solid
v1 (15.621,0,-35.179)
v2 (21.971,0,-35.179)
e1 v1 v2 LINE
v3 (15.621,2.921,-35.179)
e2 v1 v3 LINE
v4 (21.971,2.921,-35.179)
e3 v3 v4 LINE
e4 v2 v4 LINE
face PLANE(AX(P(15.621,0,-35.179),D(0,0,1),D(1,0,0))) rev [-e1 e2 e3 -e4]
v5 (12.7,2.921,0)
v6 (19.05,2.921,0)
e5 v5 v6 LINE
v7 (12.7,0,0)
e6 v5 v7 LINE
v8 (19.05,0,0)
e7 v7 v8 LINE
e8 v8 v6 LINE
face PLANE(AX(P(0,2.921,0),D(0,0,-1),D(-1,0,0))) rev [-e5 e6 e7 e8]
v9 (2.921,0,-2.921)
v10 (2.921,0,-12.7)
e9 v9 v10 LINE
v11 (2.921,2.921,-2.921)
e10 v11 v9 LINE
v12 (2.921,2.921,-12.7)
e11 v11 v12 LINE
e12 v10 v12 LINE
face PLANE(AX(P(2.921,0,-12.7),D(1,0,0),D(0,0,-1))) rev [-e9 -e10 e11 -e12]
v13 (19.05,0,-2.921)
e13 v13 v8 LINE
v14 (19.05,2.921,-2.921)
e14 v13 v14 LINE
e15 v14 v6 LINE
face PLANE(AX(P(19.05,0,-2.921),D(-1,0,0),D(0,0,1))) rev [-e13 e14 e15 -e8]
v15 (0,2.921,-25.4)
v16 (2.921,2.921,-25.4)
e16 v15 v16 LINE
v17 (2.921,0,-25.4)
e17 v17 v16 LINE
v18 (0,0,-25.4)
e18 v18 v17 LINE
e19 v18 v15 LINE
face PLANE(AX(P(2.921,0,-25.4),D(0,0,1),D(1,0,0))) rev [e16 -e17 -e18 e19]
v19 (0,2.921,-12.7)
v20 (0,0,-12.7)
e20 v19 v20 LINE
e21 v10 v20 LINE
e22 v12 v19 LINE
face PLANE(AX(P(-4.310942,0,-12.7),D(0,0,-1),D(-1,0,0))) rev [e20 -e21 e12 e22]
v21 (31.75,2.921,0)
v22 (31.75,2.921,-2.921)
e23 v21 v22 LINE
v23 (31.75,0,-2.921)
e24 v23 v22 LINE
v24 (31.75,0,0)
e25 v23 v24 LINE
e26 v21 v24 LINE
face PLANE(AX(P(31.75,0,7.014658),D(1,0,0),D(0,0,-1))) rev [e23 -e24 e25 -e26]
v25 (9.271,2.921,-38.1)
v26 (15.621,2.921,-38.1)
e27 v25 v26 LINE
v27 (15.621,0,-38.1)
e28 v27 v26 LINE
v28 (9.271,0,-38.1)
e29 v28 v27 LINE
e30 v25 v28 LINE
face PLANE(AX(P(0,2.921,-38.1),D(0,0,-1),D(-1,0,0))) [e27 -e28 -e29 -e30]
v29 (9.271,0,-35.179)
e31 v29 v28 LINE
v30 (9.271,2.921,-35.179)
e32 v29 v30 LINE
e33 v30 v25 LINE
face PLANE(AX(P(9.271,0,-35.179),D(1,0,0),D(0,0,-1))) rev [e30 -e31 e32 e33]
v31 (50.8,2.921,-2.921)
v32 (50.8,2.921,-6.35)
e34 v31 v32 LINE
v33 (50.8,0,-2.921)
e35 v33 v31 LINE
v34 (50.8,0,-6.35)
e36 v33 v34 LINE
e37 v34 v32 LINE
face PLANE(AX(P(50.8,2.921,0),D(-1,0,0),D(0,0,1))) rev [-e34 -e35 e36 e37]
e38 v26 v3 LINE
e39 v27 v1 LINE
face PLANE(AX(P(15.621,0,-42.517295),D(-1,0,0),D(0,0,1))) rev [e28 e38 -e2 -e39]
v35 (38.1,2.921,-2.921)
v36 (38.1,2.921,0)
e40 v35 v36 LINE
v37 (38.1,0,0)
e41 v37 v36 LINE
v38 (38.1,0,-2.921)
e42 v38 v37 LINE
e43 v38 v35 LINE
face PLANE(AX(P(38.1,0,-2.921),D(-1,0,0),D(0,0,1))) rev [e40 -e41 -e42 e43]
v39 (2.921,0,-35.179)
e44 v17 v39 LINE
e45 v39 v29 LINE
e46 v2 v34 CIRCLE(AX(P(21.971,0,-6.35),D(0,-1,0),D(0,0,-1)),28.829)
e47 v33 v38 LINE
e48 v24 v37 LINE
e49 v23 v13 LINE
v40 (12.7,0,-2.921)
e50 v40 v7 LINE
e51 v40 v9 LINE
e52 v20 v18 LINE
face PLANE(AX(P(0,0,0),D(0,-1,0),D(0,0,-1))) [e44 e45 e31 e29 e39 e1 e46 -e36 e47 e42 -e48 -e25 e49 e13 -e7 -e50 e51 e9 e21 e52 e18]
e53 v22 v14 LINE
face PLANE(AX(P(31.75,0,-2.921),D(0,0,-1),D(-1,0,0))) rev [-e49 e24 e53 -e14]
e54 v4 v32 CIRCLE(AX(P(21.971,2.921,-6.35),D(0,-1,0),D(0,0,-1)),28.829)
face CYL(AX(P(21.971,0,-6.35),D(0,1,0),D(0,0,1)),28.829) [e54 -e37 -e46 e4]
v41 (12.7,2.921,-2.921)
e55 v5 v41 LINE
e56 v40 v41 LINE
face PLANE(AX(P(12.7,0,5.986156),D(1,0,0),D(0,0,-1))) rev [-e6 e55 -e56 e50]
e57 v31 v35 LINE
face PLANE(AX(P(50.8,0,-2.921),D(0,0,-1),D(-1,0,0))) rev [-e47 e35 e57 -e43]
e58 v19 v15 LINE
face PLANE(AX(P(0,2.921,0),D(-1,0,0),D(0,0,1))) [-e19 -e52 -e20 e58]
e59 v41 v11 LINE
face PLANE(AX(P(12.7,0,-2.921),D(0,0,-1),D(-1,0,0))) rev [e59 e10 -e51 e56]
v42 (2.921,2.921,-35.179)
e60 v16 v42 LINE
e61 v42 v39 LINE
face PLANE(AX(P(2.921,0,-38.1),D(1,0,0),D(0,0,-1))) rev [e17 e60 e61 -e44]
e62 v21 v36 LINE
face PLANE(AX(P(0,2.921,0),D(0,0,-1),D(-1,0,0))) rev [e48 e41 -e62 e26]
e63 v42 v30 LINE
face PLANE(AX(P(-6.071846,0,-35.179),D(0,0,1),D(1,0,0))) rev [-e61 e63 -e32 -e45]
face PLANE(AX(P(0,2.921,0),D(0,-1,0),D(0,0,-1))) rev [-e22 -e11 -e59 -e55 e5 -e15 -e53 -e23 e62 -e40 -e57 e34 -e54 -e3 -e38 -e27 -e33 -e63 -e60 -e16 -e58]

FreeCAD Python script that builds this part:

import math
import FreeCAD as App
import Part
import Sketcher
from FreeCAD import Vector
Q = App.Units.Quantity


def add_polygon(sketch, points):
    """Adds a closed chain of lines whose ends are joined by coincident constraints."""
    first, n = sketch.GeometryCount, len(points)
    for a, b in zip(points, points[1:] + points[:1]):
        sketch.addGeometry(Part.LineSegment(App.Vector(*a, 0), App.Vector(*b, 0)), False)
    for i in range(n):
        sketch.addConstraint(Sketcher.Constraint("Coincident", first + i, 2, first + (i + 1) % n, 1))

doc = App.newDocument("Part")
body = doc.addObject("PartDesign::Body", "Body")

sketch1 = doc.addObject("Sketcher::SketchObject", "Sketch")
body.addObject(sketch1)
sketch1.AttachmentSupport = (doc.XZ_Plane, [""])
sketch1.MapMode = "FlatFace"
add_polygon(sketch1, [(0, -38), (0, 0), (51, 0), (51, -38)])
sketch1.addConstraint([
    Sketcher.Constraint("Vertical", 0),
    Sketcher.Constraint("Horizontal", 1),
    Sketcher.Constraint("Vertical", 2),
    Sketcher.Constraint("Horizontal", 3),
    Sketcher.Constraint("Coincident", 0, 2, -1, 1),
    Sketcher.Constraint("DistanceX", 1, 1, 1, 2, Q("2 in")),
    Sketcher.Constraint("DistanceY", 0, 1, 0, 2, Q("1.5 in")),
])
pad1 = doc.addObject("PartDesign::Pad", "Pad")
body.addObject(pad1)
pad1.Profile = sketch1
pad1.Length = Q("0.115 in")
pad1.Reversed = True

sketch2 = doc.addObject("Sketcher::SketchObject", "Sketch001")
body.addObject(sketch2)
sketch2.AttachmentSupport = (doc.XZ_Plane, [""])
sketch2.MapMode = "FlatFace"
sketch2.AttachmentOffset = App.Placement(Vector(0, 0, -0.115 * 25.4), App.Rotation())
add_polygon(sketch2, [(0, 13), (51, 13), (51, -3), (38, -3), (38, 7), (32, 7), (32, -3), (19, -3), (19, 6), (13, 6), (13, -3), (0, -3)])
sketch2.addConstraint([
    Sketcher.Constraint("Horizontal", 0),
    Sketcher.Constraint("Vertical", 1),
    Sketcher.Constraint("Horizontal", 2),
    Sketcher.Constraint("Vertical", 3),
    Sketcher.Constraint("Horizontal", 4),
    Sketcher.Constraint("Vertical", 5),
    Sketcher.Constraint("Horizontal", 6),
    Sketcher.Constraint("Vertical", 7),
    Sketcher.Constraint("Horizontal", 8),
    Sketcher.Constraint("Vertical", 9),
    Sketcher.Constraint("Horizontal", 10),
    Sketcher.Constraint("Vertical", 11),
    Sketcher.Constraint("PointOnObject", 10, 2, -2),
    Sketcher.Constraint("Horizontal", 2, 2, 5, 2),
    Sketcher.Constraint("Horizontal", 6, 2, 9, 2),
    Sketcher.Constraint("Equal", 2, 6),
    Sketcher.Constraint("Equal", 4, 8),
    Sketcher.Constraint("Equal", 6, 10),
    Sketcher.Constraint("DistanceX", 0, 1, 0, 2, Q("2 in")),
    Sketcher.Constraint("DistanceX", 2, 2, 2, 1, Q("0.5 in")),
    Sketcher.Constraint("DistanceY", 1, 2, -1, 1, Q("0.115 in")),
    Sketcher.Constraint("DistanceY", 3, 1, 3, 2, 9.935658),
    Sketcher.Constraint("DistanceY", 7, 2, 4, 2, 1.028502),
    Sketcher.Constraint("DistanceY", 1, 2, 1, 1, 15.994374),
])
pocket1 = doc.addObject("PartDesign::Pocket", "Pocket")
body.addObject(pocket1)
pocket1.Profile = sketch2
pocket1.Type = "ThroughAll"
pocket1.Reversed = True

sketch3 = doc.addObject("Sketcher::SketchObject", "Sketch002")
body.addObject(sketch3)
sketch3.AttachmentSupport = (doc.XZ_Plane, [""])
sketch3.MapMode = "FlatFace"
sketch3.AttachmentOffset = App.Placement(Vector(0, 0, -0.115 * 25.4), App.Rotation())
add_polygon(sketch3, [(-4, -25), (3, -25), (3, -38), (-7, -38), (-7, 0), (3, 0), (3, -13), (-4, -13)])
sketch3.addConstraint([
    Sketcher.Constraint("Horizontal", 0),
    Sketcher.Constraint("Vertical", 1),
    Sketcher.Constraint("Horizontal", 2),
    Sketcher.Constraint("Vertical", 3),
    Sketcher.Constraint("Horizontal", 4),
    Sketcher.Constraint("Vertical", 5),
    Sketcher.Constraint("Horizontal", 6),
    Sketcher.Constraint("Vertical", 7),
    Sketcher.Constraint("PointOnObject", 3, 2, -1),
    Sketcher.Constraint("Vertical", 1, 2, 4, 2),
    Sketcher.Constraint("Equal", 1, 5),
    Sketcher.Constraint("Equal", 5, 7),
    Sketcher.Constraint("DistanceY", 1, 2, 1, 1, Q("0.5 in")),
    Sketcher.Constraint("DistanceX", -1, 1, 0, 2, Q("0.115 in")),
    Sketcher.Constraint("DistanceX", 0, 1, 0, 2, 7.231942),
    Sketcher.Constraint("DistanceX", 2, 2, 2, 1, 9.768136),
])
pocket2 = doc.addObject("PartDesign::Pocket", "Pocket001")
body.addObject(pocket2)
pocket2.Profile = sketch3
pocket2.Type = "ThroughAll"
pocket2.Reversed = True

sketch4 = doc.addObject("Sketcher::SketchObject", "Sketch003")
body.addObject(sketch4)
sketch4.AttachmentSupport = (doc.XZ_Plane, [""])
sketch4.MapMode = "FlatFace"
sketch4.AttachmentOffset = App.Placement(Vector(0, 0, -0.115 * 25.4), App.Rotation())
sketch4.addGeometry([
    Part.LineSegment(Vector(-6.1, -35.2, 0), Vector(9.3, -35.2, 0)),
    Part.LineSegment(Vector(9.3, -35.2, 0), Vector(9.3, -42.5, 0)),
    Part.LineSegment(Vector(9.3, -42.5, 0), Vector(15.6, -42.5, 0)),
    Part.LineSegment(Vector(15.6, -42.5, 0), Vector(15.6, -35.2, 0)),
    Part.LineSegment(Vector(15.6, -35.2, 0), Vector(22, -35.2, 0)),
    Part.ArcOfCircle(Part.Circle(Vector(22, -6.4, 0), Vector(0, 0, 1), 28.8), math.radians(-90), math.radians(0)),
    Part.LineSegment(Vector(50.8, -6.3, 0), Vector(50.8, -2.9, 0)),
    Part.LineSegment(Vector(50.8, -2.9, 0), Vector(62.6, -47, 0)),
    Part.LineSegment(Vector(62.6, -47, 0), Vector(-4.4, -50.3, 0)),
    Part.LineSegment(Vector(-4.4, -50.3, 0), Vector(-6.1, -35.2, 0)),
], False)
sketch4.addConstraint([
    Sketcher.Constraint("Coincident", 0, 2, 1, 1),
    Sketcher.Constraint("Coincident", 1, 2, 2, 1),
    Sketcher.Constraint("Coincident", 2, 2, 3, 1),
    Sketcher.Constraint("Coincident", 3, 2, 4, 1),
    Sketcher.Constraint("Tangent", 4, 2, 5, 1),
    Sketcher.Constraint("Tangent", 5, 2, 6, 1),
    Sketcher.Constraint("Coincident", 6, 2, 7, 1),
    Sketcher.Constraint("Coincident", 7, 2, 8, 1),
    Sketcher.Constraint("Coincident", 8, 2, 9, 1),
    Sketcher.Constraint("Coincident", 9, 2, 0, 1),
    Sketcher.Constraint("Horizontal", 0),
    Sketcher.Constraint("Vertical", 1),
    Sketcher.Constraint("Horizontal", 2),
    Sketcher.Constraint("Vertical", 3),
    Sketcher.Constraint("Horizontal", 4),
    Sketcher.Constraint("Vertical", 6),
    Sketcher.Constraint("Horizontal", 0, 2, 3, 2),
    Sketcher.Constraint("Equal", 2, 4),
    Sketcher.Constraint("DistanceX", -1, 1, 5, 2, Q("2 in")),
    Sketcher.Constraint("Radius", 5, Q("1.135 in")),
    Sketcher.Constraint("DistanceX", 2, 1, 2, 2, Q("0.25 in")),
    Sketcher.Constraint("DistanceY", 6, 1, 6, 2, Q("0.135 in")),
    Sketcher.Constraint("DistanceY", 5, 3, -1, 1, Q("0.25 in")),
    Sketcher.Constraint("DistanceX", 9, 2, 8, 2, 1.633701),
    Sketcher.Constraint("Distance", 9, 15.242559),
    Sketcher.Constraint("DistanceX", 0, 1, 0, 2, 15.342846),
    Sketcher.Constraint("DistanceY", 1, 2, 1, 1, 7.338295),
    Sketcher.Constraint("DistanceY", 7, 2, -1, 1, 47.008362),
    Sketcher.Constraint("Distance", 7, 45.645393),
])
pocket3 = doc.addObject("PartDesign::Pocket", "Pocket002")
body.addObject(pocket3)
pocket3.Profile = sketch4
pocket3.Type = "ThroughAll"
pocket3.Reversed = True

doc.recompute()
